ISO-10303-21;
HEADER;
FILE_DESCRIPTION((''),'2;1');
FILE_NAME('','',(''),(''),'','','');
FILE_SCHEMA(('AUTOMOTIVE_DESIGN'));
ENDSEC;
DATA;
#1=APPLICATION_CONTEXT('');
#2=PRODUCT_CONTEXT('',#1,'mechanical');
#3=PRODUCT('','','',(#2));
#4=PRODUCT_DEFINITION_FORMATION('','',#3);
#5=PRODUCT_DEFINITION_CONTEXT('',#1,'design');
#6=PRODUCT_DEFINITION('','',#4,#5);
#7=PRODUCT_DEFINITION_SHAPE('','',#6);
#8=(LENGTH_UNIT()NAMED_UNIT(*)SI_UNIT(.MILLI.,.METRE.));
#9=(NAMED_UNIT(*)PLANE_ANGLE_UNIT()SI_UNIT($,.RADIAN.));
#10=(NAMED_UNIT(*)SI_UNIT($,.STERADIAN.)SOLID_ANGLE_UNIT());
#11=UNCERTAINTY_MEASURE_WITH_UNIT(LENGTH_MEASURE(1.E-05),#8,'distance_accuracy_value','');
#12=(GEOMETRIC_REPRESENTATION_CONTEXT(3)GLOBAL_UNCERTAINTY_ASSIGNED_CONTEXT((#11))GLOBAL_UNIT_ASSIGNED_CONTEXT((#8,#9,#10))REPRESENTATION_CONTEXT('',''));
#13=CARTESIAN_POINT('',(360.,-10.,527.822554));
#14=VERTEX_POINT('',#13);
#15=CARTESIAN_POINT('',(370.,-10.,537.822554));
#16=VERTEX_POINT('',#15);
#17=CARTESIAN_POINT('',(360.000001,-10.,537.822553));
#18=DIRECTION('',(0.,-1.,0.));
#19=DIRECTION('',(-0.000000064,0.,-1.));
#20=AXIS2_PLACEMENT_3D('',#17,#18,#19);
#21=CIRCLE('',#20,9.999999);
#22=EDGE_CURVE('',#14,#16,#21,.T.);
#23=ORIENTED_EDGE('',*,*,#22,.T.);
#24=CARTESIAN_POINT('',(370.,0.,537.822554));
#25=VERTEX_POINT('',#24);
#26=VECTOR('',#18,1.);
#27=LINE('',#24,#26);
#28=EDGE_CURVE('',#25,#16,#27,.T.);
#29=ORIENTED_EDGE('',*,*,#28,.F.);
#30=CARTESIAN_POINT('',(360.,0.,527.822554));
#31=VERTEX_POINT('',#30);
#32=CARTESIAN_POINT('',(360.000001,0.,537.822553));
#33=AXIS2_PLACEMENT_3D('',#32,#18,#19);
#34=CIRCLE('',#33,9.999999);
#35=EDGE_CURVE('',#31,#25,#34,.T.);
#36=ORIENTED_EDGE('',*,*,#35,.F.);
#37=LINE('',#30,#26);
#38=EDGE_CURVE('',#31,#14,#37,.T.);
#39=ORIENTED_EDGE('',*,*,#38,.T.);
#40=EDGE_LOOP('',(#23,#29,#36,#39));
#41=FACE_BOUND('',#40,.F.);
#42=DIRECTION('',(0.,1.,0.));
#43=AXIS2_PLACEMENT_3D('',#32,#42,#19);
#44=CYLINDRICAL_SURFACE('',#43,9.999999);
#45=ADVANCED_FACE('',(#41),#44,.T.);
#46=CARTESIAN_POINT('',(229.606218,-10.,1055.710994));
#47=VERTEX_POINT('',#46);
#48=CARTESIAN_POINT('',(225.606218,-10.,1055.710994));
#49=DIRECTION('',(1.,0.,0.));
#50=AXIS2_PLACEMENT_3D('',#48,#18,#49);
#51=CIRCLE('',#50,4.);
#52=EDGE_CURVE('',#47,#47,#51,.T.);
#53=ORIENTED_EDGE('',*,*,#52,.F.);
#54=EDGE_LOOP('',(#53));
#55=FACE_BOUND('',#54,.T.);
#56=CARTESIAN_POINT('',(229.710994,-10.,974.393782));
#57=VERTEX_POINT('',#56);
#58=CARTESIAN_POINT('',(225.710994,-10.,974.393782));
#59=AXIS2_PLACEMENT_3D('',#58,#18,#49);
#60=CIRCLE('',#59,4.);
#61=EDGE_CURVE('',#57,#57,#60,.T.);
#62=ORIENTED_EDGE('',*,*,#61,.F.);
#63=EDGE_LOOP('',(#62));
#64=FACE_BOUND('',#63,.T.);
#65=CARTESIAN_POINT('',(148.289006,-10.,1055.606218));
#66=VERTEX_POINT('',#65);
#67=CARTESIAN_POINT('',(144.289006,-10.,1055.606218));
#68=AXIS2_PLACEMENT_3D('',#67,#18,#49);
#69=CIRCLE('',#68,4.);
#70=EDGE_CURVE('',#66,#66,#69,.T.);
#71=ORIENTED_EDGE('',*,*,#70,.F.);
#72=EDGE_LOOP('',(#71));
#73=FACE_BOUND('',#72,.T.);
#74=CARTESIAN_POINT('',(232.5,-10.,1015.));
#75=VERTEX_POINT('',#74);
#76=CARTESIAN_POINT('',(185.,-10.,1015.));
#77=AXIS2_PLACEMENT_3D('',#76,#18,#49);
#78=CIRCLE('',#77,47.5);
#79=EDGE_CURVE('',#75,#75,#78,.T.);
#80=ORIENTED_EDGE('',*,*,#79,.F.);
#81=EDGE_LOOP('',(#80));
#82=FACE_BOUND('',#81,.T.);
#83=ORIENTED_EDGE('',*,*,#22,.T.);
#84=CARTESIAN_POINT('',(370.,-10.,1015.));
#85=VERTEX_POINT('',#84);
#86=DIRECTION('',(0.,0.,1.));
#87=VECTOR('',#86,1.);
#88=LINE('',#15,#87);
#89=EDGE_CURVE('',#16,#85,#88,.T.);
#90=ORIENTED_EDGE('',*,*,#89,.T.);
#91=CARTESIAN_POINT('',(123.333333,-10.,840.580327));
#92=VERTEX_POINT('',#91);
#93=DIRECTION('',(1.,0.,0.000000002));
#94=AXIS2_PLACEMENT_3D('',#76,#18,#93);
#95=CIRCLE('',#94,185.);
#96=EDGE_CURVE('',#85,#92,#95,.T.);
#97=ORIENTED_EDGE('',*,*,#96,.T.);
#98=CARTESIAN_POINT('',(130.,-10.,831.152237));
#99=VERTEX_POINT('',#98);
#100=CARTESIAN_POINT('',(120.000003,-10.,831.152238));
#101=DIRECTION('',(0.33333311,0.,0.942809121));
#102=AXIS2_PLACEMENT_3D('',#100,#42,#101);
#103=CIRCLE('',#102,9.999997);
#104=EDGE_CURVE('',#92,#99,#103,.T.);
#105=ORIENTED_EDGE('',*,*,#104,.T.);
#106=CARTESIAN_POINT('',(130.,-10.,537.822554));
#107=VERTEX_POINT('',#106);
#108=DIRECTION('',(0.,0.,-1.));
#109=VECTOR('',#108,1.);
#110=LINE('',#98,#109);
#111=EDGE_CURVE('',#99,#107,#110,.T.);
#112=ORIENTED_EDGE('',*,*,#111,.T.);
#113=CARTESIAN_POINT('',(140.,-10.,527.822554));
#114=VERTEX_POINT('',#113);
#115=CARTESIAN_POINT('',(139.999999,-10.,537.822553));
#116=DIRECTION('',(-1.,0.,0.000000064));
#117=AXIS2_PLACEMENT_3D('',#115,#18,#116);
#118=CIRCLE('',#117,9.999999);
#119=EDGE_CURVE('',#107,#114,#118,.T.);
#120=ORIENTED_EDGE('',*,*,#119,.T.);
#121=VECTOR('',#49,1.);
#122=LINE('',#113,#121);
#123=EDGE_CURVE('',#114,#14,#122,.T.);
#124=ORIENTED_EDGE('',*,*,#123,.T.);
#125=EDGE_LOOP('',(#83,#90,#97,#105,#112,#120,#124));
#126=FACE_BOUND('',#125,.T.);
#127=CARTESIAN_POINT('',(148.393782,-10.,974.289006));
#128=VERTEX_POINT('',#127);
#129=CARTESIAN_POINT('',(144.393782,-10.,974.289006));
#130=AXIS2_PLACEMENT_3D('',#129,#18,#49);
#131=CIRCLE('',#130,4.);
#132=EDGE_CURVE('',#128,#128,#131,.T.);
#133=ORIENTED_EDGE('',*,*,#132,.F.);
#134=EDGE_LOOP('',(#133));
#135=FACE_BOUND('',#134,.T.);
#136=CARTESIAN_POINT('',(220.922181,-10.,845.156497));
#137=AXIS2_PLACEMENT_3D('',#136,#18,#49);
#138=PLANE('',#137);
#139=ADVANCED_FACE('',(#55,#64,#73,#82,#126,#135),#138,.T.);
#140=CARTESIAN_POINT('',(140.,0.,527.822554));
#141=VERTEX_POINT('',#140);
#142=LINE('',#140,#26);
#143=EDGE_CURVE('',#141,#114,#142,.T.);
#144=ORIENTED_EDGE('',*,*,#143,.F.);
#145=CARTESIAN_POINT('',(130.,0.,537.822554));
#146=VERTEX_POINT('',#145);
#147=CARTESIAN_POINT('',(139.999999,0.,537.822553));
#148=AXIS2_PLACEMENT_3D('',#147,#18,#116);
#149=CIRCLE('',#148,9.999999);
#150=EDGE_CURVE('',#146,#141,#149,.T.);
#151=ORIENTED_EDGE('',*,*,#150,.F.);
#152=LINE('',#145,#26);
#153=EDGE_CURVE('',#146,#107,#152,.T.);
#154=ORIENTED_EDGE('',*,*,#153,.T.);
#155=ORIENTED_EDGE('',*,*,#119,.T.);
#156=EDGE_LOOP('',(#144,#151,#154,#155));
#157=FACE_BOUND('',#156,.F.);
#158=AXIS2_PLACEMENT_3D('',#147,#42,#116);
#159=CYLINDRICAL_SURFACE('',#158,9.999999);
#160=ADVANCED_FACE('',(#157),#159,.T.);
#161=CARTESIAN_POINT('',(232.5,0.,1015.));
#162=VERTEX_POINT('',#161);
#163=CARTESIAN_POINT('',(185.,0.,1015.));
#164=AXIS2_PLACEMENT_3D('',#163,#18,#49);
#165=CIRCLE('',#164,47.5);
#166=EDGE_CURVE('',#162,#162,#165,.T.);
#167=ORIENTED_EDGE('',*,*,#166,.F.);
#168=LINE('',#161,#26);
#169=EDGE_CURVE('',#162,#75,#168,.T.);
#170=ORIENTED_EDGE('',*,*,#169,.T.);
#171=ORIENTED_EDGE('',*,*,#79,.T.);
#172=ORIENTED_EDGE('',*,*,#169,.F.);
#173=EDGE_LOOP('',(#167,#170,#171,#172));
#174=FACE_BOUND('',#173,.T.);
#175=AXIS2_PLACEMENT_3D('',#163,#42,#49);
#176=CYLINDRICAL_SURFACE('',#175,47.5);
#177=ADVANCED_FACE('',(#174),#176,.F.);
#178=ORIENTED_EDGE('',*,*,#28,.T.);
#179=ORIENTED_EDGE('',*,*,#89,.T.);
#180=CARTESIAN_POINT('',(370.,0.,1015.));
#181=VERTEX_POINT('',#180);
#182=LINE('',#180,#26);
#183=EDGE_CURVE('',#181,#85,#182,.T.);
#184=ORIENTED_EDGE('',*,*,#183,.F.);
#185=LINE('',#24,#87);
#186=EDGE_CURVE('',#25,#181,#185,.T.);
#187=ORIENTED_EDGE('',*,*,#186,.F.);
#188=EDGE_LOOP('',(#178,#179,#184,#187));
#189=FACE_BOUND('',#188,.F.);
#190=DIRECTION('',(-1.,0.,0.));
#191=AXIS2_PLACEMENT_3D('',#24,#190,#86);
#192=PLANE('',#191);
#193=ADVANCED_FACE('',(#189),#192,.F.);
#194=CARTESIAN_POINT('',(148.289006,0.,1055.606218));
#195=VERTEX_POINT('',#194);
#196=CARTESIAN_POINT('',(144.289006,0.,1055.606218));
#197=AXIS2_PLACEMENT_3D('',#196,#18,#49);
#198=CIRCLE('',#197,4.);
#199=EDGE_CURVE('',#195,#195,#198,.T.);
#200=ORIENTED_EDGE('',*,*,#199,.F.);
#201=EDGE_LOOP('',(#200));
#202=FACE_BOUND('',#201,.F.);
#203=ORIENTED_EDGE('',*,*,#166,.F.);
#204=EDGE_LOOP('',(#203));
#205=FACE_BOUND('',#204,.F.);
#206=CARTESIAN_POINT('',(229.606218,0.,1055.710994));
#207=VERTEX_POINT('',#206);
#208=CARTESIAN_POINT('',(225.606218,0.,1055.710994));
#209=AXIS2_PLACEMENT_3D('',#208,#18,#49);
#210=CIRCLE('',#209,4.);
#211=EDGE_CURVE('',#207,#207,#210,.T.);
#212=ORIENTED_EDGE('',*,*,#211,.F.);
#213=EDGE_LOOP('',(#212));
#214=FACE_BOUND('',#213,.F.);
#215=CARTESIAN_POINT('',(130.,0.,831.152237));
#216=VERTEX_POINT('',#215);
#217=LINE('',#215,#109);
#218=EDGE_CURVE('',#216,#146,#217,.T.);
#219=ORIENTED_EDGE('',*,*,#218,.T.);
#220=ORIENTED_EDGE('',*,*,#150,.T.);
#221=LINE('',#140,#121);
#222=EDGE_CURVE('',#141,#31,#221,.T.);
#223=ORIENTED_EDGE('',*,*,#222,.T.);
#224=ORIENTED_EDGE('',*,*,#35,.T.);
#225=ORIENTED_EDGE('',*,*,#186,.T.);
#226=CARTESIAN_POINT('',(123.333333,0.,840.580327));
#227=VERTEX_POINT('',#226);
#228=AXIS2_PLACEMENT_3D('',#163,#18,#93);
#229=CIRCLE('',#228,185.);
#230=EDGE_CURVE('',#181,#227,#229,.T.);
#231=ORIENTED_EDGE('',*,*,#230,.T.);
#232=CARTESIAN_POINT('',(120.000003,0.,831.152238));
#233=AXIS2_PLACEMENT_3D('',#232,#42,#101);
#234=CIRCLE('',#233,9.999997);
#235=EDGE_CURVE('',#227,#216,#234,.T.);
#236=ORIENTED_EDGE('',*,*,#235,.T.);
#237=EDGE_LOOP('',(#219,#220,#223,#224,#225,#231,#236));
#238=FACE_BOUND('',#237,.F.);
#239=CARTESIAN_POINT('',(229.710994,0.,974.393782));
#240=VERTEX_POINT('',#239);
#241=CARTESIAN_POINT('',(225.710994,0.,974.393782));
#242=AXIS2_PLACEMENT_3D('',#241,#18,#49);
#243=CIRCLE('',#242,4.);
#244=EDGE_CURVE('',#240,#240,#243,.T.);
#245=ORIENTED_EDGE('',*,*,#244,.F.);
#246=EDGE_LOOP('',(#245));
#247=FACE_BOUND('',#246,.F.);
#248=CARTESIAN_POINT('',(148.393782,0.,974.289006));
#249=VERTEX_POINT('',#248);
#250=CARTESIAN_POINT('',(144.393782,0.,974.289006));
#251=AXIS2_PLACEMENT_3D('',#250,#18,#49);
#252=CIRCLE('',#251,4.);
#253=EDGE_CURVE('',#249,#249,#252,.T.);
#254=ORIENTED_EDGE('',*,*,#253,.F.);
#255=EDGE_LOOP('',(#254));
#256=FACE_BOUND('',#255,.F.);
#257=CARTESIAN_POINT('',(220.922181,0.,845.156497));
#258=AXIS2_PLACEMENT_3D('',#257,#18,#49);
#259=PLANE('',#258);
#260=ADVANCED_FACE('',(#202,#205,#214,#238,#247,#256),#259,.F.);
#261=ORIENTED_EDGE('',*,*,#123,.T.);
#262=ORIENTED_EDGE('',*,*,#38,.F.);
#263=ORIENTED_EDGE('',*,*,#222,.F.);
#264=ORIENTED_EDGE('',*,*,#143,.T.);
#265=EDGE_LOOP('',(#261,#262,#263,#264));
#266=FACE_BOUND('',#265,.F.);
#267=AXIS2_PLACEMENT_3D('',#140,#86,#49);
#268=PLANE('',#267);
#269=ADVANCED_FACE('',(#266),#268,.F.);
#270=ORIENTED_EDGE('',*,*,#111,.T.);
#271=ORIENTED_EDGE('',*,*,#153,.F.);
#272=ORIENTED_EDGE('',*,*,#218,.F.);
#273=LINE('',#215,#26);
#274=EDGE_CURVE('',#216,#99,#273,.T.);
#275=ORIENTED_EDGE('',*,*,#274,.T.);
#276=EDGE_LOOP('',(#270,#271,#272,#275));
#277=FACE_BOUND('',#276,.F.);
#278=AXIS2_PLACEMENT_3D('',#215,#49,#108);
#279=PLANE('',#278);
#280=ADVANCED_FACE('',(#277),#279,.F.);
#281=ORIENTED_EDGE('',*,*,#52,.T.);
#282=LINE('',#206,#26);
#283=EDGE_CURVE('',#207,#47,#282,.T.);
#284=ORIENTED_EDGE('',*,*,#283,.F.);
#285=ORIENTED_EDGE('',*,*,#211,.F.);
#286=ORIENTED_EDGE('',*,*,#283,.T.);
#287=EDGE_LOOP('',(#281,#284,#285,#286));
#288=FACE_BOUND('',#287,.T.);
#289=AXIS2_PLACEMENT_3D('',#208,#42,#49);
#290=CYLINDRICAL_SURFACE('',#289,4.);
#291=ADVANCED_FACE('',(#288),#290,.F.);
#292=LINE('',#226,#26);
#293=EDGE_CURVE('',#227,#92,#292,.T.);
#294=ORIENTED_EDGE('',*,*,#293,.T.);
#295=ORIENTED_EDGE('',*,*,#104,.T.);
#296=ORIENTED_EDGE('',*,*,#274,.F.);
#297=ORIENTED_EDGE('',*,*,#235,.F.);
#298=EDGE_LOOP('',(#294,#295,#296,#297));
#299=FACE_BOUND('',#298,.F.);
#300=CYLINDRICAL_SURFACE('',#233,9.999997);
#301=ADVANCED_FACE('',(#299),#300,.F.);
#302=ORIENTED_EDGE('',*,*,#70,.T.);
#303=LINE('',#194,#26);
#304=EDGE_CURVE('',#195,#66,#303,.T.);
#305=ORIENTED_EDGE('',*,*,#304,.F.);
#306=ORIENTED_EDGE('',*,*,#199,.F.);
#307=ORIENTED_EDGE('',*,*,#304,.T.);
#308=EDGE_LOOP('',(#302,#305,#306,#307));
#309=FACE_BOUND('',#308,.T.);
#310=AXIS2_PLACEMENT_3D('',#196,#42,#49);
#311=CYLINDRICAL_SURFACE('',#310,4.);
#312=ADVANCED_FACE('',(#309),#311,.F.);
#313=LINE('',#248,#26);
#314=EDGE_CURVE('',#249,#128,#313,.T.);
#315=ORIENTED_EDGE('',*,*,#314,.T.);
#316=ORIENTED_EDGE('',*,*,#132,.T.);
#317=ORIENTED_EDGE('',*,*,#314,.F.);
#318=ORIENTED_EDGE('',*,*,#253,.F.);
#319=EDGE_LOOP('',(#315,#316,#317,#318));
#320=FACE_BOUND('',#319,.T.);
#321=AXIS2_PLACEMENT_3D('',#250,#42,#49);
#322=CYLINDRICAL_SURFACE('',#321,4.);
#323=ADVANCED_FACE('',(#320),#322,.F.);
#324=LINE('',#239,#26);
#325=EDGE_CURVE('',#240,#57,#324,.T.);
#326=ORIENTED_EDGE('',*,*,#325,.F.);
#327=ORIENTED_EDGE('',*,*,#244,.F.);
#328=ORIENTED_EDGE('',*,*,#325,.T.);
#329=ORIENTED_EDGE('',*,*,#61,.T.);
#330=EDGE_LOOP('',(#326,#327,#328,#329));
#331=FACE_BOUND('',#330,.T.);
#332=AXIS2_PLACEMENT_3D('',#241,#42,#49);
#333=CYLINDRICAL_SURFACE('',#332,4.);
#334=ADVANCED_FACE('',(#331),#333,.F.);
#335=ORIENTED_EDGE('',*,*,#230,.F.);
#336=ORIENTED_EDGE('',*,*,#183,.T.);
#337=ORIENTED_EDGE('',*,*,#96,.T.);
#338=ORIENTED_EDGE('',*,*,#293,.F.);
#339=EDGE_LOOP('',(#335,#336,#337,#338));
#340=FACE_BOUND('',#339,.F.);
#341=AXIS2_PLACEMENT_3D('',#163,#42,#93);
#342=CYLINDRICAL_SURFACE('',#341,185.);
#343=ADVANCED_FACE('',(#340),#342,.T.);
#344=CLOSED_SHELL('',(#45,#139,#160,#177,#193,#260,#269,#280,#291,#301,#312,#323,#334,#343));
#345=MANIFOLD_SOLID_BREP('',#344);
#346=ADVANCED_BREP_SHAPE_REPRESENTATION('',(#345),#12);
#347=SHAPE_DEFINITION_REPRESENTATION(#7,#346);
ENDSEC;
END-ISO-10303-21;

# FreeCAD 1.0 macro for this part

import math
import FreeCAD as App
import Part
import Sketcher

V = App.Vector

doc = App.newDocument("Part")
body = doc.addObject("PartDesign::Body", "Body")

sketch1 = doc.addObject("Sketcher::SketchObject", "Sketch")
body.addObject(sketch1)
sketch1.AttachmentSupport = (doc.XZ_Plane, [""])
sketch1.MapMode = "FlatFace"
sketch1.addGeometry([
    Part.LineSegment(V(370, 537.8, 0), V(370, 1015, 0)),
    Part.ArcOfCircle(Part.Circle(V(185, 1015, 0), V(0, 0, 1), 185), math.radians(0), math.radians(251)),
    Part.ArcOfCircle(Part.Circle(V(120, 831.2, 0), V(0, 0, 1), 10), math.radians(0), math.radians(71)),
    Part.LineSegment(V(130, 831.2, 0), V(130, 537.8, 0)),
    Part.ArcOfCircle(Part.Circle(V(140, 537.8, 0), V(0, 0, 1), 10), math.radians(180), math.radians(270)),
    Part.LineSegment(V(140, 527.8, 0), V(360, 527.8, 0)),
    Part.ArcOfCircle(Part.Circle(V(360, 537.8, 0), V(0, 0, 1), 10), math.radians(-90), math.radians(0)),
    Part.Circle(V(144.4, 974.3, 0), V(0, 0, 1), 4),
    Part.Circle(V(225.7, 974.4, 0), V(0, 0, 1), 4),
    Part.Circle(V(144.3, 1055.6, 0), V(0, 0, 1), 4),
    Part.Circle(V(185, 1015, 0), V(0, 0, 1), 47.5),
    Part.Circle(V(225.6, 1055.7, 0), V(0, 0, 1), 4),
], False)
sketch1.addConstraint([
    Sketcher.Constraint("Tangent", 0, 2, 1, 1),
    Sketcher.Constraint("Tangent", 1, 2, 2, 2),
    Sketcher.Constraint("Tangent", 2, 1, 3, 1),
    Sketcher.Constraint("Tangent", 3, 2, 4, 1),
    Sketcher.Constraint("Tangent", 4, 2, 5, 1),
    Sketcher.Constraint("Tangent", 5, 2, 6, 1),
    Sketcher.Constraint("Tangent", 6, 2, 0, 1),
    Sketcher.Constraint("Vertical", 0),
    Sketcher.Constraint("Vertical", 3),
    Sketcher.Constraint("Horizontal", 5),
    Sketcher.Constraint("Coincident", 10, 3, 1, 3),
    Sketcher.Constraint("Equal", 4, 6),
    Sketcher.Constraint("Equal", 7, 8),
    Sketcher.Constraint("Equal", 8, 9),
    Sketcher.Constraint("Equal", 9, 11),
    Sketcher.Constraint("Diameter", 7, 8.0),
    Sketcher.Constraint("Diameter", 10, 95.0),
    Sketcher.Constraint("Radius", 1, 185.0),
    Sketcher.Constraint("Radius", 4, 9.999999),
    Sketcher.Constraint("DistanceX", 5, 1, 5, 2, 220.0),
    Sketcher.Constraint("DistanceX", -1, 1, 1, 3, 185.0),
    Sketcher.Constraint("DistanceY", -1, 1, 1, 3, 1015.0),
    Sketcher.Constraint("Radius", 2, 9.999997),
    Sketcher.Constraint("DistanceY", 0, 1, 0, 2, 477.177446),
    Sketcher.Constraint("DistanceX", -1, 1, 7, 3, 144.393782),
    Sketcher.Constraint("DistanceY", -1, 1, 8, 3, 974.393782),
    Sketcher.Constraint("DistanceY", -1, 1, 9, 3, 1055.606218),
    Sketcher.Constraint("DistanceX", -1, 1, 11, 3, 225.606218),
    Sketcher.Constraint("DistanceX", 2, 3, 8, 3, 105.710991),
    Sketcher.Constraint("DistanceY", 7, 3, 9, 3, 81.317212),
    Sketcher.Constraint("DistanceX", 9, 3, 8, 3, 81.421988),
    Sketcher.Constraint("DistanceY", 7, 3, 11, 3, 81.421988),
])
pad1 = doc.addObject("PartDesign::Pad", "Pad")
body.addObject(pad1)
pad1.Profile = sketch1
pad1.Length = 10

doc.recompute()
